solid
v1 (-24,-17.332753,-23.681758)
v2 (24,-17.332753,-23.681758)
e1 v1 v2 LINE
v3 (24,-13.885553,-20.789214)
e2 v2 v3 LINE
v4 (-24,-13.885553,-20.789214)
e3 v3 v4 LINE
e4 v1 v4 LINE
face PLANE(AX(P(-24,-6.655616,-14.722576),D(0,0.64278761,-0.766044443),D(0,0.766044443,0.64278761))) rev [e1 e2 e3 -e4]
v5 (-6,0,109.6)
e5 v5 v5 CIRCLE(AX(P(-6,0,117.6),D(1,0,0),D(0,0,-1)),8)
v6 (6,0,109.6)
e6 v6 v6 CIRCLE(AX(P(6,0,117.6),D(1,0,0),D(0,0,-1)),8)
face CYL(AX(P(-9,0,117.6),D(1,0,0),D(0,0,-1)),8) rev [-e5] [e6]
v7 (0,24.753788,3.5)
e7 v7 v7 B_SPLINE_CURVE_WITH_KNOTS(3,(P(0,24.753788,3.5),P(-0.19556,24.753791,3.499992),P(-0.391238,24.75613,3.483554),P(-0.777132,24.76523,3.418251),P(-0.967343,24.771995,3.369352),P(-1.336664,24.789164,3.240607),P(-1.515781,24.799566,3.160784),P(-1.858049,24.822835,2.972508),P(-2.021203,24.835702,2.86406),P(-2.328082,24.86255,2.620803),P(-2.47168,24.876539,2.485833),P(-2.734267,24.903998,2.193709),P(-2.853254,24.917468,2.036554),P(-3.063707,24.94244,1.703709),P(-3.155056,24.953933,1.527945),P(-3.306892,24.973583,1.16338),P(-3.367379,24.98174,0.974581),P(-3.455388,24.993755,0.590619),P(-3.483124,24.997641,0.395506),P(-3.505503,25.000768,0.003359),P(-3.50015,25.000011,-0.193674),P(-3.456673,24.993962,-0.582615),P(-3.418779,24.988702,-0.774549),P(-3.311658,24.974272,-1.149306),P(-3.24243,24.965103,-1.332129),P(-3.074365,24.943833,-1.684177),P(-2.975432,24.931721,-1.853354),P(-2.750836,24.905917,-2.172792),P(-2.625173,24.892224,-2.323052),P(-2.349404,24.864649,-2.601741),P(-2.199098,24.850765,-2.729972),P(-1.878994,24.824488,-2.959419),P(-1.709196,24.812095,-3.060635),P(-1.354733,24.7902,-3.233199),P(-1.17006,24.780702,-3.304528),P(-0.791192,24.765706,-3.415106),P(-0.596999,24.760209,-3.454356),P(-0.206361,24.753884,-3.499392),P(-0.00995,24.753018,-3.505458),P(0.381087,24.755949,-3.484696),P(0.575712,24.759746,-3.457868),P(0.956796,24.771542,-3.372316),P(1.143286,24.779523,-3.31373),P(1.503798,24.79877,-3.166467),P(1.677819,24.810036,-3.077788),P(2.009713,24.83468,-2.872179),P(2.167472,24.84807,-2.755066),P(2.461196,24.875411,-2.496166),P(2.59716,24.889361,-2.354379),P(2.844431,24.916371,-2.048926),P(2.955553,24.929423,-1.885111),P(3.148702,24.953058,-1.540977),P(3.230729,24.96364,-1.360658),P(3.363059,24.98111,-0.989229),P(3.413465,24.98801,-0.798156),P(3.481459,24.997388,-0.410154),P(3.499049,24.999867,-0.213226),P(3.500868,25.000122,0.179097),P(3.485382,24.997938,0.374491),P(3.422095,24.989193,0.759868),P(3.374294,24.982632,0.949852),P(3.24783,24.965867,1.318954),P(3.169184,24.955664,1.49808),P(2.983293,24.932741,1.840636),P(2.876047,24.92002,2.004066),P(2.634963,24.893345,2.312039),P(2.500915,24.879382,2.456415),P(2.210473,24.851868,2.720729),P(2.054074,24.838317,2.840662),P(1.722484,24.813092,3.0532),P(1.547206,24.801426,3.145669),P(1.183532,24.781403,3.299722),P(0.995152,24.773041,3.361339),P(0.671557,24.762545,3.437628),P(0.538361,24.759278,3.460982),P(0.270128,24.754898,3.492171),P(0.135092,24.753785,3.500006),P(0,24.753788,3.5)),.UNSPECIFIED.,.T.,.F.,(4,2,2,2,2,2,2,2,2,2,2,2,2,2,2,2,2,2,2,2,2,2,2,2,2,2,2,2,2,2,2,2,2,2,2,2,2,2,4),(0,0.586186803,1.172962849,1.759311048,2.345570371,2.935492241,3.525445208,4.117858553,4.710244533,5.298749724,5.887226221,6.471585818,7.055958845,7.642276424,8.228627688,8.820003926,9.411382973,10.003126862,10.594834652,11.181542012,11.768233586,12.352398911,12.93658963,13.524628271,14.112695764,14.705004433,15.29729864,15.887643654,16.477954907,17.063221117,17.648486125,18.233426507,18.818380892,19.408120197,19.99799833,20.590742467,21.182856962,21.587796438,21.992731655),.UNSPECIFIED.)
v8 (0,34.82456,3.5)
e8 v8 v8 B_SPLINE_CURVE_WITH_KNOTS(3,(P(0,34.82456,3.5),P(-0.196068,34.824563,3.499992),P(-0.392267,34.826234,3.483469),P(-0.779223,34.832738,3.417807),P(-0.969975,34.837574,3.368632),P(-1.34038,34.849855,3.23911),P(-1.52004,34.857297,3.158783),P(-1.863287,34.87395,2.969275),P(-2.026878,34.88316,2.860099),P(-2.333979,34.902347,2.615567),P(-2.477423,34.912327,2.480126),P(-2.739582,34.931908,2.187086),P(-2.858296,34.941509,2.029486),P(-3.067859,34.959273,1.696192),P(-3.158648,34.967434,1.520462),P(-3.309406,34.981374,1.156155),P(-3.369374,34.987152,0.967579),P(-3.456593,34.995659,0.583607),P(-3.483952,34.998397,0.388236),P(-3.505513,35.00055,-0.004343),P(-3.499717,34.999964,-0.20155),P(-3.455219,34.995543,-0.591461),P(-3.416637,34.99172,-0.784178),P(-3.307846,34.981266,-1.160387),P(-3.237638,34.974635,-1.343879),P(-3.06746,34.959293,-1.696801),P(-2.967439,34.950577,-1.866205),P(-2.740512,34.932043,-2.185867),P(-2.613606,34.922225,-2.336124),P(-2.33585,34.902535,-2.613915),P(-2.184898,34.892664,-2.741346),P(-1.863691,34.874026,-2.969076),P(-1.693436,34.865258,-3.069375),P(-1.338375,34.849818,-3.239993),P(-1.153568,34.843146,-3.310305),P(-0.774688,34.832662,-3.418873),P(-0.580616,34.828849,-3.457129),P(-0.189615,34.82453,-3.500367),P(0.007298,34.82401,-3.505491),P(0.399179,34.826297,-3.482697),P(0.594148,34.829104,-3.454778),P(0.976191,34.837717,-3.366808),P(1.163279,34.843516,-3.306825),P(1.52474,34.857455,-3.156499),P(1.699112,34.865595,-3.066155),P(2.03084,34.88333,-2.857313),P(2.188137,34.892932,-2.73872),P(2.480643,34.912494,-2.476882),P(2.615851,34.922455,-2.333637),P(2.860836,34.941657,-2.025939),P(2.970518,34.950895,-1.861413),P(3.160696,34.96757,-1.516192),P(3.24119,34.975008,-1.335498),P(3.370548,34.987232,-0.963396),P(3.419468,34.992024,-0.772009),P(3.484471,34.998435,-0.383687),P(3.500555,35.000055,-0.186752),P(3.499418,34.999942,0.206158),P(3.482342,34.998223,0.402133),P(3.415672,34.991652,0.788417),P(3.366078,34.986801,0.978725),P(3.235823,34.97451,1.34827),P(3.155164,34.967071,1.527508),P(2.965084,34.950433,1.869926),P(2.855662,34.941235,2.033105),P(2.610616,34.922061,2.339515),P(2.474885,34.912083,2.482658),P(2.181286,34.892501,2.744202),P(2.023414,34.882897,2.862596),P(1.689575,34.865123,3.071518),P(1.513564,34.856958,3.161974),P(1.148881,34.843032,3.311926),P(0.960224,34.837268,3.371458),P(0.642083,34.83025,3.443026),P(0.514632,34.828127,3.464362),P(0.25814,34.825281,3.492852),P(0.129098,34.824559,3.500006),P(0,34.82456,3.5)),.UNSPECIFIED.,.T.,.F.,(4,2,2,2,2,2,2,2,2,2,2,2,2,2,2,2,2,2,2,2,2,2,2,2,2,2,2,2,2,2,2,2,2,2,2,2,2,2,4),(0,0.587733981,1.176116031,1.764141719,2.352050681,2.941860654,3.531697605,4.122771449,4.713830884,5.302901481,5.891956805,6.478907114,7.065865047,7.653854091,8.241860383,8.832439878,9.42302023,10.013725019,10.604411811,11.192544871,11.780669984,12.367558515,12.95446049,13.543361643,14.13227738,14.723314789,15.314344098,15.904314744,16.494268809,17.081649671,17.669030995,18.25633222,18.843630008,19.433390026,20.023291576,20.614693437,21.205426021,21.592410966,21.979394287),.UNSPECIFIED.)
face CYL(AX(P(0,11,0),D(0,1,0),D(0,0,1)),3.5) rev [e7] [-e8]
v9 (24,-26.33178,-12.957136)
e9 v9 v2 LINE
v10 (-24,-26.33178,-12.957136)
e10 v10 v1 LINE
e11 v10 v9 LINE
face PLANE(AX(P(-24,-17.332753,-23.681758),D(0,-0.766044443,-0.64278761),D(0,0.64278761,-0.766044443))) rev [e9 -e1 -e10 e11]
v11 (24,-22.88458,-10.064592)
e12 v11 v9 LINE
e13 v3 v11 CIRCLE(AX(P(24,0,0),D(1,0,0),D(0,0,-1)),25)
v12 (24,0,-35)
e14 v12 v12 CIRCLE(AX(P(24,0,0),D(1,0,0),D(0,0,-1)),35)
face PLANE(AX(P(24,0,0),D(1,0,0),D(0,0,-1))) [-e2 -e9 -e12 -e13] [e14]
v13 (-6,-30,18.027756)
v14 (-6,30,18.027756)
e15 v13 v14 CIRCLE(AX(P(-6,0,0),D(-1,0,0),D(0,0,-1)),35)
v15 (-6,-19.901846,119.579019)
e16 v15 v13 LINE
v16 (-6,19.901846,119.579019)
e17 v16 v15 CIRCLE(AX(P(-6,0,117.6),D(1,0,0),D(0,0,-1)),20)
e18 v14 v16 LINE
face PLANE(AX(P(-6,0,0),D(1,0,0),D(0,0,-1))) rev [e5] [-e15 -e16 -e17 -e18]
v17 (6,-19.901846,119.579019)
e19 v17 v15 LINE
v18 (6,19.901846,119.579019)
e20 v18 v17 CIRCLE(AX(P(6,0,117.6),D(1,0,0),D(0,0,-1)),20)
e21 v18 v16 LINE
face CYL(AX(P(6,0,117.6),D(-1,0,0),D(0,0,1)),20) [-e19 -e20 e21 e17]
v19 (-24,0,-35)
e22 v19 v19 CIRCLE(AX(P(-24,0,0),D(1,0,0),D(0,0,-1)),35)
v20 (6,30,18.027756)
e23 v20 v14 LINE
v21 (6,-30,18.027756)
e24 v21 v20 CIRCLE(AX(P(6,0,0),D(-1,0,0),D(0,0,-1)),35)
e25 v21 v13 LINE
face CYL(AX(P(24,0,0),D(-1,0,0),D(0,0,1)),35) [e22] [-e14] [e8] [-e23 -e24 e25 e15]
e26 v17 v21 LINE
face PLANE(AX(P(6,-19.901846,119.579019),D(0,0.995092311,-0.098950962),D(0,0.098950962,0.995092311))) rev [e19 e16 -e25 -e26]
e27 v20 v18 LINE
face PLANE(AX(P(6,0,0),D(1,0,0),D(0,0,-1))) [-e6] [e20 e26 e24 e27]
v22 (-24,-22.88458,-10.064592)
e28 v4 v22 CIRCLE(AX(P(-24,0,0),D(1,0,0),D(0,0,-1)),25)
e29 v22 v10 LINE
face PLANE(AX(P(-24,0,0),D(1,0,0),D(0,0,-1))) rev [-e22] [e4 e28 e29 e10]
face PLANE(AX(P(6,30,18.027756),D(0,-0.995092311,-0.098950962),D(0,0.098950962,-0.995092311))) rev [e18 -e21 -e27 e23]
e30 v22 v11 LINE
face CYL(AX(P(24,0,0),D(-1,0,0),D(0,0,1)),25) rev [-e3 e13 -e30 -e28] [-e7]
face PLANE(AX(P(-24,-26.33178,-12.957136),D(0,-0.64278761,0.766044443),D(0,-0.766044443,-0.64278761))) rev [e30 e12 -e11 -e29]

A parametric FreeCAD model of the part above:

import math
import FreeCAD as App
import Part
import Sketcher
Q = App.Units.Quantity

doc = App.newDocument("Part")
body = doc.addObject("PartDesign::Body", "Body")

# Sketch on YZ plane
sketch1 = body.newObject("Sketcher::SketchObject", "Sketch")
sketch1.AttachmentSupport = (doc.getObject("YZ_Plane"), [""])
sketch1.MapMode = "FlatFace"
sketch1.addGeometry(Part.Circle(App.Vector(0, 0, 0), App.Vector(0, 0, 1), 35), False)
sketch1.addGeometry(Part.Circle(App.Vector(0, 0, 0), App.Vector(0, 0, 1), 25), False)
sketch1.addConstraint(Sketcher.Constraint("Coincident", 0, 3, -1, 1))
sketch1.addConstraint(Sketcher.Constraint("Coincident", 1, 3, -1, 1))
sketch1.addConstraint(Sketcher.Constraint("Diameter", 0, 70.0))
sketch1.addConstraint(Sketcher.Constraint("Diameter", 1, 50.0))
pad1 = body.newObject("PartDesign::Pad", "Pad")
pad1.Profile = sketch1
pad1.Length = 48
pad1.Midplane = True

# Sketch on YZ plane
sketch2 = body.newObject("Sketcher::SketchObject", "Sketch001")
sketch2.AttachmentSupport = (doc.getObject("YZ_Plane"), [""])
sketch2.MapMode = "FlatFace"
sketch2.addGeometry(Part.LineSegment(App.Vector(30, 18, 0), App.Vector(20, 120, 0)), False)
sketch2.addGeometry(Part.ArcOfCircle(Part.Circle(App.Vector(0, 118, 0), App.Vector(0, 0, 1), 20), math.radians(6), math.radians(174)), False)
sketch2.addGeometry(Part.LineSegment(App.Vector(-20, 120, 0), App.Vector(-30, 18, 0)), False)
sketch2.addGeometry(Part.ArcOfCircle(Part.Circle(App.Vector(0, 0, 0), App.Vector(0, 0, 1), 35), math.radians(31), math.radians(149)), False)
sketch2.addConstraint(Sketcher.Constraint("Tangent", 0, 2, 1, 1))
sketch2.addConstraint(Sketcher.Constraint("Tangent", 1, 2, 2, 1))
sketch2.addConstraint(Sketcher.Constraint("Coincident", 2, 2, 3, 2))
sketch2.addConstraint(Sketcher.Constraint("Coincident", 3, 1, 0, 1))
sketch2.addConstraint(Sketcher.Constraint("Coincident", 3, 3, -1, 1))
sketch2.addConstraint(Sketcher.Constraint("Symmetric", 0, 2, 1, 2, -2))
sketch2.addConstraint(Sketcher.Constraint("Radius", 1, 20.0))
sketch2.addConstraint(Sketcher.Constraint("Radius", 3, 35.0))
sketch2.addConstraint(Sketcher.Constraint("DistanceX", 2, 2, -1, 1, 30.0))
sketch2.addConstraint(Sketcher.Constraint("DistanceY", -1, 1, 1, 3, 117.6))
pad2 = body.newObject("PartDesign::Pad", "Pad001")
pad2.Profile = sketch2
pad2.Length = 12
pad2.Midplane = True

# Sketch on YZ plane
sketch3 = body.newObject("Sketcher::SketchObject", "Sketch002")
sketch3.AttachmentSupport = (doc.getObject("YZ_Plane"), [""])
sketch3.MapMode = "FlatFace"
sketch3.AttachmentOffset = App.Placement(App.Vector(0, 0, 6), App.Rotation())
sketch3.addGeometry(Part.Circle(App.Vector(0, 118, 0), App.Vector(0, 0, 1), 8), False)
sketch3.addConstraint(Sketcher.Constraint("PointOnObject", 0, 3, -2))
sketch3.addConstraint(Sketcher.Constraint("Diameter", 0, 16.0))
sketch3.addConstraint(Sketcher.Constraint("DistanceY", -1, 1, 0, 3, 117.6))
pocket1 = body.newObject("PartDesign::Pocket", "Pocket")
pocket1.Profile = sketch3
pocket1.Length = 15

# Sketch on YZ plane
sketch4 = body.newObject("Sketcher::SketchObject", "Sketch003")
sketch4.AttachmentSupport = (doc.getObject("YZ_Plane"), [""])
sketch4.MapMode = "FlatFace"
sketch4.AttachmentOffset = App.Placement(App.Vector(0, 0, 24), App.Rotation())
sketch4.addGeometry(Part.LineSegment(App.Vector(-26, -13, 0), App.Vector(-17, -24, 0)), False)
sketch4.addGeometry(Part.LineSegment(App.Vector(-17, -24, 0), App.Vector(-7, -15, 0)), False)
sketch4.addGeometry(Part.LineSegment(App.Vector(-7, -15, 0), App.Vector(-16, -4, 0)), False)
sketch4.addGeometry(Part.LineSegment(App.Vector(-16, -4, 0), App.Vector(-26, -13, 0)), False)
sketch4.addConstraint(Sketcher.Constraint("Coincident", 0, 2, 1, 1))
sketch4.addConstraint(Sketcher.Constraint("Coincident", 1, 2, 2, 1))
sketch4.addConstraint(Sketcher.Constraint("Coincident", 2, 2, 3, 1))
sketch4.addConstraint(Sketcher.Constraint("Coincident", 3, 2, 0, 1))
sketch4.addConstraint(Sketcher.Constraint("Perpendicular", 0, 1))
sketch4.addConstraint(Sketcher.Constraint("Perpendicular", 1, 2))
sketch4.addConstraint(Sketcher.Constraint("Perpendicular", 2, 3))
sketch4.addConstraint(Sketcher.Constraint("Angle", 0, Q("-50 deg")))
sketch4.addConstraint(Sketcher.Constraint("Distance", 0, 14.0))
sketch4.addConstraint(Sketcher.Constraint("DistanceX", 3, 2, -1, 1, 26.33178))
sketch4.addConstraint(Sketcher.Constraint("DistanceX", 0, 2, 2, 2, 1.678111))
sketch4.addConstraint(Sketcher.Constraint("DistanceY", 0, 2, -1, 1, 23.681758))
pocket2 = body.newObject("PartDesign::Pocket", "Pocket001")
pocket2.Profile = sketch4
pocket2.Type = "ThroughAll"

# Sketch on XZ plane
sketch5 = body.newObject("Sketcher::SketchObject", "Sketch004")
sketch5.AttachmentSupport = (doc.getObject("XZ_Plane"), [""])
sketch5.MapMode = "FlatFace"
sketch5.AttachmentOffset = App.Placement(App.Vector(0, 0, -35), App.Rotation())
sketch5.addGeometry(Part.Circle(App.Vector(0, 0, 0), App.Vector(0, 0, 1), 3.5), False)
sketch5.addConstraint(Sketcher.Constraint("Coincident", 0, 3, -1, 1))
sketch5.addConstraint(Sketcher.Constraint("Diameter", 0, 7.0))
pocket3 = body.newObject("PartDesign::Pocket", "Pocket002")
pocket3.Profile = sketch5
pocket3.Length = 24
pocket3.Reversed = True

doc.recompute()
